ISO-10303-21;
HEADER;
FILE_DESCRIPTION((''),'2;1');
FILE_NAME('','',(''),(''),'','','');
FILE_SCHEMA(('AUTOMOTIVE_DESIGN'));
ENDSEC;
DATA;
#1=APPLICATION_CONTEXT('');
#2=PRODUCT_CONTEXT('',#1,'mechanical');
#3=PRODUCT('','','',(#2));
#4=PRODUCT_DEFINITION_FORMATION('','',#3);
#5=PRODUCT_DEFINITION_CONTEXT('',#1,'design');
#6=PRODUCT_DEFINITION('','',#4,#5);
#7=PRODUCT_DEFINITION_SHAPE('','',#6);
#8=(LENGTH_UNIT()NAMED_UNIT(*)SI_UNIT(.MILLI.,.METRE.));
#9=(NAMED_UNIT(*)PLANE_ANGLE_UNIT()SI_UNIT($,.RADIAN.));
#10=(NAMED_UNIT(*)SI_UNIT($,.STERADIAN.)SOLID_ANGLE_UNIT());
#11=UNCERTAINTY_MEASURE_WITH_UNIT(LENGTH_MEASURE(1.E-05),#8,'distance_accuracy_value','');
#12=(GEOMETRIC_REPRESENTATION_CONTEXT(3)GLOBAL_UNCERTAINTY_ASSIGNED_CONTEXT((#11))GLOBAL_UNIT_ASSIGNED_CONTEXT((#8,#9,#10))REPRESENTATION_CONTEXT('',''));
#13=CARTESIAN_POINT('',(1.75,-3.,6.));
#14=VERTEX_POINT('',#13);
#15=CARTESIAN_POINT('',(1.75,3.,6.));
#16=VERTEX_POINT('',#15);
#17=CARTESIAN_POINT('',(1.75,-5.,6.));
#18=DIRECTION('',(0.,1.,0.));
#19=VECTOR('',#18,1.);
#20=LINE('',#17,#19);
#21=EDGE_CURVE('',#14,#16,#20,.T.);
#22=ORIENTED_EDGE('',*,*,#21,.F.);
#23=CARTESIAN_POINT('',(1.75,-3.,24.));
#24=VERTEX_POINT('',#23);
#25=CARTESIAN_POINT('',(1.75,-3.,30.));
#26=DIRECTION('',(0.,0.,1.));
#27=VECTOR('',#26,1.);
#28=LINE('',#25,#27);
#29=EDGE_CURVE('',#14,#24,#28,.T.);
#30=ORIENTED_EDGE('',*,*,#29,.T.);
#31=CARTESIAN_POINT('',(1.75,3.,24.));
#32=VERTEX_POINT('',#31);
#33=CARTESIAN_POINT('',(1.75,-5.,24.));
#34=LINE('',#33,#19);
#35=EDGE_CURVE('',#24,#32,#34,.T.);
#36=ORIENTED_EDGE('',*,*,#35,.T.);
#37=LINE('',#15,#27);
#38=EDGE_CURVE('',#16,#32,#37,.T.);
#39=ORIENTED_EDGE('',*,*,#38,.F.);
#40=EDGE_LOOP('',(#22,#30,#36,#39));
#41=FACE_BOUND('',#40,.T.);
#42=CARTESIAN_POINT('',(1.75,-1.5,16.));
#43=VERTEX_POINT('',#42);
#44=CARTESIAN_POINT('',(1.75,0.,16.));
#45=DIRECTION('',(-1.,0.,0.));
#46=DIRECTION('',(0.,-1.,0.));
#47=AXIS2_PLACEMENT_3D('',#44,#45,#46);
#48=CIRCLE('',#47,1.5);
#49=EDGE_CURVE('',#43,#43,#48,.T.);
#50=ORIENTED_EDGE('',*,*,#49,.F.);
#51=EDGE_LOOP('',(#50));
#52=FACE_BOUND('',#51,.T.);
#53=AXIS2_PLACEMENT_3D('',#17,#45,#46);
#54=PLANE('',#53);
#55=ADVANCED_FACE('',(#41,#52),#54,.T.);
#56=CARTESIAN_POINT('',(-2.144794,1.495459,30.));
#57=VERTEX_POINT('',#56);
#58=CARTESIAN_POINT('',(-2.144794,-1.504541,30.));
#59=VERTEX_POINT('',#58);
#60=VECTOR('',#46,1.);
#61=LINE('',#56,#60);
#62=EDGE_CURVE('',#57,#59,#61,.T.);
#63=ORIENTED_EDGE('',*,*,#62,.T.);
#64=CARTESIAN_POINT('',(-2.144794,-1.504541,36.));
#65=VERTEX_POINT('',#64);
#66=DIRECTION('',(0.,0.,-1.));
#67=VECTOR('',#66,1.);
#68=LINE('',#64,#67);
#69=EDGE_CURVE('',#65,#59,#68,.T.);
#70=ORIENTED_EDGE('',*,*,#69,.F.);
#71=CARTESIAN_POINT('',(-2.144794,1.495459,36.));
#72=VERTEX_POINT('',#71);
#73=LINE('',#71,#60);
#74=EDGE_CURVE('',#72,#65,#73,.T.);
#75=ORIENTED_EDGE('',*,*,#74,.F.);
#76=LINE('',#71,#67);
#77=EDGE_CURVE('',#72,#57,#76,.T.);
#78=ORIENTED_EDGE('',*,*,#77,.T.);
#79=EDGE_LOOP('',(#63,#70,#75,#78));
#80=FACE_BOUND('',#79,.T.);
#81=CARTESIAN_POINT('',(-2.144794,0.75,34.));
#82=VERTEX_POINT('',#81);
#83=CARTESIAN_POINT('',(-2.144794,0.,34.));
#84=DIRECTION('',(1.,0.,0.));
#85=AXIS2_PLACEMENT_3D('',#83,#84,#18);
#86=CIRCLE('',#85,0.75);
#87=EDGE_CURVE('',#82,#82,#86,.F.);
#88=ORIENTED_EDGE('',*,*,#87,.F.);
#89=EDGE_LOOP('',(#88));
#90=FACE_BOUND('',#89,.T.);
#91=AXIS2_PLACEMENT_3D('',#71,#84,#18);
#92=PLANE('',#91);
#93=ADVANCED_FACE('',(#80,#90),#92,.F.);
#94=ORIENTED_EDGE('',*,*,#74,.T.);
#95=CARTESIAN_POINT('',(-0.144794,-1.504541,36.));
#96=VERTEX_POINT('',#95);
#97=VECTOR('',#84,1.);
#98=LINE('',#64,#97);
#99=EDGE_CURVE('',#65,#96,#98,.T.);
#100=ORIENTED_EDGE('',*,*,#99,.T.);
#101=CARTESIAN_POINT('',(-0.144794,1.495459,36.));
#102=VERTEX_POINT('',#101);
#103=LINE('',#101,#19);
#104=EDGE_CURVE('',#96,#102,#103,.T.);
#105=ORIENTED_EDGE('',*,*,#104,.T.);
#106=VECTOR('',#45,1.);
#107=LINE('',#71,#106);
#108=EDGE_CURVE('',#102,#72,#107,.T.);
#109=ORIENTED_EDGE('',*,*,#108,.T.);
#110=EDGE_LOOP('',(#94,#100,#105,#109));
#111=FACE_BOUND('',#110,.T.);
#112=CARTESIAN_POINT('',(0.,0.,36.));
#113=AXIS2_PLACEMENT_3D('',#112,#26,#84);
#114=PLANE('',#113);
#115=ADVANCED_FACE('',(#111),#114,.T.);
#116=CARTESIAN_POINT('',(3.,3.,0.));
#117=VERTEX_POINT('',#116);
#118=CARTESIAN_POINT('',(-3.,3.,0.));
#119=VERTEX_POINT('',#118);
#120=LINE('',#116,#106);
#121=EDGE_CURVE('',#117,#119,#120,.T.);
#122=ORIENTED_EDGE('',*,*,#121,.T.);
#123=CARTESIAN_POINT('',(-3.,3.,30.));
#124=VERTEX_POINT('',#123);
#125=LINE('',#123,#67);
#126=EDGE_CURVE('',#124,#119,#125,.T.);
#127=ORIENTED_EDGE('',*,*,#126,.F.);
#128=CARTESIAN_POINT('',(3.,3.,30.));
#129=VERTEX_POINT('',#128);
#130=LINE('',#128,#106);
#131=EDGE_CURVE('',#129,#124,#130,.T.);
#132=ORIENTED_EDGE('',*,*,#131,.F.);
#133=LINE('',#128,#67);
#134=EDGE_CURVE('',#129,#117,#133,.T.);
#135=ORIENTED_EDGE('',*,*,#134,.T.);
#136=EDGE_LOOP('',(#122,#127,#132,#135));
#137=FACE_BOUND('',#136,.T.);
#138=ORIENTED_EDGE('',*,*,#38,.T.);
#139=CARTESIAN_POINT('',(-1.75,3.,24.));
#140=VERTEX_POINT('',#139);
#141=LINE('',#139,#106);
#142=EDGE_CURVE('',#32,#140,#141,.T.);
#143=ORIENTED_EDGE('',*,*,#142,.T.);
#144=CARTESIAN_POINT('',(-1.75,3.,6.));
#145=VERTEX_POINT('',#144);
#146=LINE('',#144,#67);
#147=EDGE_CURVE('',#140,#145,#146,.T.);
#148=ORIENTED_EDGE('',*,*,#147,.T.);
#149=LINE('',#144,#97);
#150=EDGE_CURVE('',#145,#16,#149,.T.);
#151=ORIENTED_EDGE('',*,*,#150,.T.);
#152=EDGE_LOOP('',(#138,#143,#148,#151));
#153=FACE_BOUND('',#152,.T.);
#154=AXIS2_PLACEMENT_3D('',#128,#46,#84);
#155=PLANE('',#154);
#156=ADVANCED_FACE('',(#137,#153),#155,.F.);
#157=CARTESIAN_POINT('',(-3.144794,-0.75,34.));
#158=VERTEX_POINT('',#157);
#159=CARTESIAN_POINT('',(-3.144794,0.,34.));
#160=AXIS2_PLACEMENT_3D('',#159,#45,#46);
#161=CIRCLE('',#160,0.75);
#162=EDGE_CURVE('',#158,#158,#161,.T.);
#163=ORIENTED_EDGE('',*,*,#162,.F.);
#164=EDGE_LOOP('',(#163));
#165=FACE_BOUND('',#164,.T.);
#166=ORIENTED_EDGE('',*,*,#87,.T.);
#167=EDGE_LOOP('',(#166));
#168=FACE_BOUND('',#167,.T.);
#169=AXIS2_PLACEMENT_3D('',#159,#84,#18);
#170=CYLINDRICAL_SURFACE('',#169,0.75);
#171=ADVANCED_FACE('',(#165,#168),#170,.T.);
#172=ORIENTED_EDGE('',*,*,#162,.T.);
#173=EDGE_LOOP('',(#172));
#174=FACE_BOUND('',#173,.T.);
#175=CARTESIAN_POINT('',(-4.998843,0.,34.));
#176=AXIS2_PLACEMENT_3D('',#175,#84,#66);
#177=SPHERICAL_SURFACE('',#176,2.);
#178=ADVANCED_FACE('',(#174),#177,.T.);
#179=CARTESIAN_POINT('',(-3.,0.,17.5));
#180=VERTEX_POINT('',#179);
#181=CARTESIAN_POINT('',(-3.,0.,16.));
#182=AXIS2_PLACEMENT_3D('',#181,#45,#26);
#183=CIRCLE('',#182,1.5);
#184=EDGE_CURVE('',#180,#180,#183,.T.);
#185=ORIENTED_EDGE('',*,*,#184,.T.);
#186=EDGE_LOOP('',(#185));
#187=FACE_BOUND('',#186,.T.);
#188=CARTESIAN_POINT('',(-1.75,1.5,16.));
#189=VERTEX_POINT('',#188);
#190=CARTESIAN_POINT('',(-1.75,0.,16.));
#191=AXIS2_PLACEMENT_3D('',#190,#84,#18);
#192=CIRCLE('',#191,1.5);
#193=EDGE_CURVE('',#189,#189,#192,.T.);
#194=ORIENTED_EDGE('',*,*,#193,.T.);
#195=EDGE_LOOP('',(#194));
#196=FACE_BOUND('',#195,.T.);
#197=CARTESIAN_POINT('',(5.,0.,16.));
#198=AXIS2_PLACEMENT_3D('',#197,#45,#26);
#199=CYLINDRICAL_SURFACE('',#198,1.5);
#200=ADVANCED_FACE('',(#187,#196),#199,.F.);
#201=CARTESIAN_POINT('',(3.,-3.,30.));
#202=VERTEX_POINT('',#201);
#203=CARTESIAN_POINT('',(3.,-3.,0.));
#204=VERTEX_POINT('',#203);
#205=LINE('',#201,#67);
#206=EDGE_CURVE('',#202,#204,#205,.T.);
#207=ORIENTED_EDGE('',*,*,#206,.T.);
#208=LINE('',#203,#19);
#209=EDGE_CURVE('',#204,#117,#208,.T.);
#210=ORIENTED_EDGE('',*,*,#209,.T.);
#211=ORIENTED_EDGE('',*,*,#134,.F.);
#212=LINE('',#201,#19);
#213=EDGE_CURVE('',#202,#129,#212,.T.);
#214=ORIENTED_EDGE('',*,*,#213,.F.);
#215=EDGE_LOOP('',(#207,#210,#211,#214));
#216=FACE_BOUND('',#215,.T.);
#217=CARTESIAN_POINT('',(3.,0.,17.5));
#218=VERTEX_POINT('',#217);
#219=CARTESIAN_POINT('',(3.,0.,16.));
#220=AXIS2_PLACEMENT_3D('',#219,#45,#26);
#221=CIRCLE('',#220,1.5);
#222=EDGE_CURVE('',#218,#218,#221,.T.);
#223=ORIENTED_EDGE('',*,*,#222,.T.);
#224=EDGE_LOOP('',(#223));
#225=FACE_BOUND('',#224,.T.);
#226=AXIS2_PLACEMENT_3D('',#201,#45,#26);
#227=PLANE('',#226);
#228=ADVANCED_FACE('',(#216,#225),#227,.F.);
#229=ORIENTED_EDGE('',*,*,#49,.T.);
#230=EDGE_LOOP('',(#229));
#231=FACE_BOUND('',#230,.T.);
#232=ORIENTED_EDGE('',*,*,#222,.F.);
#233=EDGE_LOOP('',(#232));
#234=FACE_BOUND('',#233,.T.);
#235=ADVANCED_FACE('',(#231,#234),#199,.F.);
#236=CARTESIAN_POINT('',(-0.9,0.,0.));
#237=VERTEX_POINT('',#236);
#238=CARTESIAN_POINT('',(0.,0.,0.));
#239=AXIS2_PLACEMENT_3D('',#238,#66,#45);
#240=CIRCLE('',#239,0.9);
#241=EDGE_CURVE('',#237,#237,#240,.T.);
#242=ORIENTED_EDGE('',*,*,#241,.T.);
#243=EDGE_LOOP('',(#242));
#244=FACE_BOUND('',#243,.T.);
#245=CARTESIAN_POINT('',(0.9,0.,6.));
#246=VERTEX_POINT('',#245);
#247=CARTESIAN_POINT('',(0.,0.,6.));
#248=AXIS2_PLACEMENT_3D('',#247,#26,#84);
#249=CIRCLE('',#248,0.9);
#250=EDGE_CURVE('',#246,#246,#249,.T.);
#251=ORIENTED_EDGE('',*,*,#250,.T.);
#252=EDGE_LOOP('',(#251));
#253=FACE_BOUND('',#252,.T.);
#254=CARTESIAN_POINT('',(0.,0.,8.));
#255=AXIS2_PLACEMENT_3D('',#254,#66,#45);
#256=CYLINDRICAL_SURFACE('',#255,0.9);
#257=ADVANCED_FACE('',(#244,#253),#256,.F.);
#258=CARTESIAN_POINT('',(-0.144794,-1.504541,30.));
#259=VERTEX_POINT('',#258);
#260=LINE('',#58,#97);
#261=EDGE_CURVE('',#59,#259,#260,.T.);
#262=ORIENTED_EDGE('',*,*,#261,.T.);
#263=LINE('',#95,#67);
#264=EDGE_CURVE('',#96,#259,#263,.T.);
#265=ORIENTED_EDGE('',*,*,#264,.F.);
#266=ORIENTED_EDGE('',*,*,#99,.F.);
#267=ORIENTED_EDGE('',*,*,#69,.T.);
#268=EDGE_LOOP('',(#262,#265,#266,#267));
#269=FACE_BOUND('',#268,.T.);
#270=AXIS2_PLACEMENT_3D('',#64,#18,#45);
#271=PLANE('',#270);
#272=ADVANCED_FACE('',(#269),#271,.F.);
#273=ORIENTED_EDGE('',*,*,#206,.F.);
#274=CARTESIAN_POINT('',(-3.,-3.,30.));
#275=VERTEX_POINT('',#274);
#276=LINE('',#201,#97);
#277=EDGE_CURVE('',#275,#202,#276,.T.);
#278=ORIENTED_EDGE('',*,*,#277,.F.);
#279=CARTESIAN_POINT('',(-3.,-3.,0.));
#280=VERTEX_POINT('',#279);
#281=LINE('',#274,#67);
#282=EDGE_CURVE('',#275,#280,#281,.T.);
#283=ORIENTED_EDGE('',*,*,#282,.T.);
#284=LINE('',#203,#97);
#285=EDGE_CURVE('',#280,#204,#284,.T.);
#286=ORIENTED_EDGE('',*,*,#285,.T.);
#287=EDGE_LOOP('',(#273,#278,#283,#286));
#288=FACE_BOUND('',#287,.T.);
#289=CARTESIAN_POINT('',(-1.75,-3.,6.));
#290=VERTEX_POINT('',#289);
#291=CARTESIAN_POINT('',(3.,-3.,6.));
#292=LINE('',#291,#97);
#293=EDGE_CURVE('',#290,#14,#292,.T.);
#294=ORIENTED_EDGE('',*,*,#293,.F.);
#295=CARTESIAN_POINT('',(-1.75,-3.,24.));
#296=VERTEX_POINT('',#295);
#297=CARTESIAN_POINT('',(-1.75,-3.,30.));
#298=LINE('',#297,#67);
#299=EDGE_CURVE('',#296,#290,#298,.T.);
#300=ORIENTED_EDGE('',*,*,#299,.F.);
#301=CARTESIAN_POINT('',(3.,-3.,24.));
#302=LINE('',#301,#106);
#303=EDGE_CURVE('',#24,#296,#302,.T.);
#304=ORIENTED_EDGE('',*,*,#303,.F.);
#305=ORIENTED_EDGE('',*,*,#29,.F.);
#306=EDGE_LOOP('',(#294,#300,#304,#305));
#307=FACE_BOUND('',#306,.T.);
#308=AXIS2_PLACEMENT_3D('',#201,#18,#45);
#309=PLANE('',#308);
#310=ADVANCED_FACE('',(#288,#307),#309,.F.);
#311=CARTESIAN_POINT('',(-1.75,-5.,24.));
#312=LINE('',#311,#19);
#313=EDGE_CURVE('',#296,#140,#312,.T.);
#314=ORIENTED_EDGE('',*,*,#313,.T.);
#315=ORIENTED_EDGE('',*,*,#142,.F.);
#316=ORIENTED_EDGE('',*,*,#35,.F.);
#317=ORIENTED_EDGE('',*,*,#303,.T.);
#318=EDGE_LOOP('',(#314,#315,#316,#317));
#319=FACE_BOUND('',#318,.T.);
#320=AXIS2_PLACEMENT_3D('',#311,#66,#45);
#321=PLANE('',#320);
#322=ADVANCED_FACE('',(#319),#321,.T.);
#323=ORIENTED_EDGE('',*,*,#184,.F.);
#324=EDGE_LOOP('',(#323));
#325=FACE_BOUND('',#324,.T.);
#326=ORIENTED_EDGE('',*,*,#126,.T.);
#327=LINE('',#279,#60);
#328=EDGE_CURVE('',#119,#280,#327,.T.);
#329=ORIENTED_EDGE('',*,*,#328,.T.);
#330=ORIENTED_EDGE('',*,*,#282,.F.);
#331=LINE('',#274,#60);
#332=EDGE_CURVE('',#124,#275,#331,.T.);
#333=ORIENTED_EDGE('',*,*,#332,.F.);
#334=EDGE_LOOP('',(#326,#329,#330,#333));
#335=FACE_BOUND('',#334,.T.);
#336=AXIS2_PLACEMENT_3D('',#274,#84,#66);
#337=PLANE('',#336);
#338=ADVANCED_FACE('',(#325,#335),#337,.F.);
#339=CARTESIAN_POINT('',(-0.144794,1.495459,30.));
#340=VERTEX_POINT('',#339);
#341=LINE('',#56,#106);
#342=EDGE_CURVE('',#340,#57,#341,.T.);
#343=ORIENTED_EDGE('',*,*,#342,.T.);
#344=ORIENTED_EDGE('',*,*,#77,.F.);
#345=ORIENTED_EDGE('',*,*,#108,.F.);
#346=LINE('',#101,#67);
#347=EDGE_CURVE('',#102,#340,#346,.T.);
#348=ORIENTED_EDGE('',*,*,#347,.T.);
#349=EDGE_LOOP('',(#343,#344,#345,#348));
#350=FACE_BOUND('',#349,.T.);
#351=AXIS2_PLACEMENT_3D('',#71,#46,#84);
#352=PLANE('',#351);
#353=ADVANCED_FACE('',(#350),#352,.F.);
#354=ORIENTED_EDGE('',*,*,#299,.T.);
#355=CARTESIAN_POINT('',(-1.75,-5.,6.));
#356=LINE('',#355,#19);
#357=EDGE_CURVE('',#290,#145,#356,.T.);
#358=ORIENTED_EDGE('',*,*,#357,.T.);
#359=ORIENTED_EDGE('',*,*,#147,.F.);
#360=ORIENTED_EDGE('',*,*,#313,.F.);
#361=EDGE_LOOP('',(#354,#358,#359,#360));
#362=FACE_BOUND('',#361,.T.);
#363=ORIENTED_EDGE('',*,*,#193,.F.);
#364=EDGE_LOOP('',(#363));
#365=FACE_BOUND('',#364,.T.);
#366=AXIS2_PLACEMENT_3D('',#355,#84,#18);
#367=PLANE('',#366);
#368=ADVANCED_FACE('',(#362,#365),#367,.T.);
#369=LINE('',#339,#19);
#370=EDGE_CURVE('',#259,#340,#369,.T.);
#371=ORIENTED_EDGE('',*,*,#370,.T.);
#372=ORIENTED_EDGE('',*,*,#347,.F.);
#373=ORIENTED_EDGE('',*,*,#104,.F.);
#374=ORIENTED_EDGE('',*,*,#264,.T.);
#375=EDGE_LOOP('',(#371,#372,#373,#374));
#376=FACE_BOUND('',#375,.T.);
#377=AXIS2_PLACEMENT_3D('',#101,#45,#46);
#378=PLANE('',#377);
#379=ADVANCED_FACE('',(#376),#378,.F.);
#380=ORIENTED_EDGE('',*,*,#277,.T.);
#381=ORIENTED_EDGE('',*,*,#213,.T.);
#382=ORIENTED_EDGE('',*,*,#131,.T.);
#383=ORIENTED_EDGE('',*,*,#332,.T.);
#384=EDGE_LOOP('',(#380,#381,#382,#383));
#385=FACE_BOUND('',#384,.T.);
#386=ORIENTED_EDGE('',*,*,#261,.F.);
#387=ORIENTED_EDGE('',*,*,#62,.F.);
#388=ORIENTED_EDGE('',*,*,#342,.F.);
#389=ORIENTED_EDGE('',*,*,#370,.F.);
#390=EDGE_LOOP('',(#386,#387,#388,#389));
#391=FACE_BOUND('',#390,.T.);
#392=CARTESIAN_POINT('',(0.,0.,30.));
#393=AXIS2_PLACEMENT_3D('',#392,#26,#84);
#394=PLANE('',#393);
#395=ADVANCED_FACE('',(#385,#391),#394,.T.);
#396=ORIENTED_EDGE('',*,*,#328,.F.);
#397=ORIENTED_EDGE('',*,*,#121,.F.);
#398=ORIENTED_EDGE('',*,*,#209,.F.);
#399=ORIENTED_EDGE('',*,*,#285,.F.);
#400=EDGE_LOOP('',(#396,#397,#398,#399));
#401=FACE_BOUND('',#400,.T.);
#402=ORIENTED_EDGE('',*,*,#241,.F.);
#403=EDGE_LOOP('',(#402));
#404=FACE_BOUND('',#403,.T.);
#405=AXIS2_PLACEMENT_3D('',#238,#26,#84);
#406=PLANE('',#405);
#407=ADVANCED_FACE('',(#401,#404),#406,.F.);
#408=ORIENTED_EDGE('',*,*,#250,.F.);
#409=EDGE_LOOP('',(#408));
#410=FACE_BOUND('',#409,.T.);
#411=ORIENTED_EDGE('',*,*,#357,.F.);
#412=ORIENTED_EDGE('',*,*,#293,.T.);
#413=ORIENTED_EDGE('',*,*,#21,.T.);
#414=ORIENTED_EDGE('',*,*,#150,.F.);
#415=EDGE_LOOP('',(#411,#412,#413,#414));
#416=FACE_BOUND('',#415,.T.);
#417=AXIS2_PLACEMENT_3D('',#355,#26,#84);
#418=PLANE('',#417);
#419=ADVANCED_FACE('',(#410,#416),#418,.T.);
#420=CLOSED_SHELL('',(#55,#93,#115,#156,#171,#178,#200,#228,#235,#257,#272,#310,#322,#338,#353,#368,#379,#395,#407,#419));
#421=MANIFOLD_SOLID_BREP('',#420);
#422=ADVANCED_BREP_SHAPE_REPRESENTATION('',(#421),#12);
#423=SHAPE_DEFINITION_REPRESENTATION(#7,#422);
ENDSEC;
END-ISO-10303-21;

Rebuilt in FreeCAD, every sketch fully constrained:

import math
import FreeCAD as App
import Part
import Sketcher


def add_polygon(sketch, points):
    """Adds a closed chain of lines whose ends are joined by coincident constraints."""
    first, n = sketch.GeometryCount, len(points)
    for a, b in zip(points, points[1:] + points[:1]):
        sketch.addGeometry(Part.LineSegment(App.Vector(*a, 0), App.Vector(*b, 0)), False)
    for i in range(n):
        sketch.addConstraint(Sketcher.Constraint("Coincident", first + i, 2, first + (i + 1) % n, 1))

doc = App.newDocument("Part")
body = doc.addObject("PartDesign::Body", "Body")

# Sketch on XY plane
sketch1 = body.newObject("Sketcher::SketchObject", "Sketch")
sketch1.AttachmentSupport = (doc.getObject("XY_Plane"), [""])
sketch1.MapMode = "FlatFace"
add_polygon(sketch1, [(-3, 3), (-3, -3), (3, -3), (3, 3)])  # lines 0-3
sketch1.addConstraint([
    Sketcher.Constraint("Vertical", 0),
    Sketcher.Constraint("Horizontal", 1),
    Sketcher.Constraint("Vertical", 2),
    Sketcher.Constraint("Horizontal", 3),
    Sketcher.Constraint("Symmetric", 0, 2, 2, 2, -1, 1),
    Sketcher.Constraint("Equal", 3, 0),
    Sketcher.Constraint("DistanceX", 1, 1, 1, 2, 6.0),
])
pad1 = body.newObject("PartDesign::Pad", "Pad")
pad1.Profile = sketch1
pad1.Length = 30

# Sketch on XY plane
sketch2 = body.newObject("Sketcher::SketchObject", "Sketch001")
sketch2.AttachmentSupport = (doc.getObject("XY_Plane"), [""])
sketch2.MapMode = "FlatFace"
sketch2.AttachmentOffset = App.Placement(App.Vector(0, 0, 30), App.Rotation())
add_polygon(sketch2, [(-2.144794, 1.495459), (-2.144794, -1.504541), (-0.144794, -1.504541), (-0.144794, 1.495459)])  # lines 0-3
sketch2.addConstraint([
    Sketcher.Constraint("Vertical", 0),
    Sketcher.Constraint("Horizontal", 1),
    Sketcher.Constraint("Vertical", 2),
    Sketcher.Constraint("Horizontal", 3),
    Sketcher.Constraint("DistanceX", 1, 1, 1, 2, 2.0),
    Sketcher.Constraint("DistanceY", 0, 2, 0, 1, 3.0),
    Sketcher.Constraint("DistanceY", 0, 2, -1, 1, 1.504541),
    Sketcher.Constraint("DistanceX", 0, 2, -1, 1, 2.144794),
])
pad2 = body.newObject("PartDesign::Pad", "Pad001")
pad2.Profile = sketch2
pad2.Length = 6

# Sketch on YZ plane
sketch3 = body.newObject("Sketcher::SketchObject", "Sketch002")
sketch3.AttachmentSupport = (doc.getObject("YZ_Plane"), [""])
sketch3.MapMode = "FlatFace"
sketch3.AttachmentOffset = App.Placement(App.Vector(0, 0, -2.144794), App.Rotation())
sketch3.addGeometry(Part.Circle(App.Vector(0, 34, 0), App.Vector(0, 0, 1), 0.75), False)
sketch3.addConstraint([
    Sketcher.Constraint("PointOnObject", 0, 3, -2),
    Sketcher.Constraint("Diameter", 0, 1.5),
    Sketcher.Constraint("DistanceY", -1, 1, 0, 3, 34.0),
])
pad3 = body.newObject("PartDesign::Pad", "Pad002")
pad3.Profile = sketch3
pad3.Length = 1
pad3.Reversed = True

# Sketch on XZ plane
sketch4 = body.newObject("Sketcher::SketchObject", "Sketch003")
sketch4.AttachmentSupport = (doc.getObject("XZ_Plane"), [""])
sketch4.MapMode = "FlatFace"
sketch4.addGeometry([
    Part.LineSegment(App.Vector(-6.998843, 34, 0), App.Vector(-3.144794, 34, 0)),
    Part.LineSegment(App.Vector(-3.144794, 34, 0), App.Vector(-3.144794, 33.25, 0)),
    Part.ArcOfCircle(Part.Circle(App.Vector(-4.998843, 34, 0), App.Vector(0, 0, 1), 2), math.radians(180), math.radians(337.975687)),
], False)
sketch4.addGeometry(Part.LineSegment(App.Vector(-3.144794, 34, 0), App.Vector(-6.998843, 34, 0)), True)  # axis
sketch4.addConstraint([
    Sketcher.Constraint("Coincident", 0, 2, 1, 1),
    Sketcher.Constraint("Coincident", 1, 2, 2, 2),
    Sketcher.Constraint("Coincident", 2, 1, 0, 1),
    Sketcher.Constraint("Horizontal", 0),
    Sketcher.Constraint("Vertical", 1),
    Sketcher.Constraint("Horizontal", 3),
    Sketcher.Constraint("Coincident", 3, 1, 0, 2),
    Sketcher.Constraint("Horizontal", 2, 3, 0, 2),
    Sketcher.Constraint("Equal", 0, 3),
    Sketcher.Constraint("Radius", 2, 2.0),
    Sketcher.Constraint("DistanceY", -1, 1, 2, 3, 34.0),
    Sketcher.Constraint("DistanceY", 1, 2, 1, 1, 0.75),
    Sketcher.Constraint("DistanceX", 2, 3, -1, 1, 4.998843),
])
revolution = body.newObject("PartDesign::Revolution", "Revolution")
revolution.Profile = sketch4
revolution.ReferenceAxis = (sketch4, ["Axis0"])
revolution.Angle = 360

# Sketch on XZ plane
sketch5 = body.newObject("Sketcher::SketchObject", "Sketch004")
sketch5.AttachmentSupport = (doc.getObject("XZ_Plane"), [""])
sketch5.MapMode = "FlatFace"
sketch5.AttachmentOffset = App.Placement(App.Vector(0, 0, -3), App.Rotation())
add_polygon(sketch5, [(-1.75, 6), (1.75, 6), (1.75, 24), (-1.75, 24)])  # lines 0-3
sketch5.addConstraint([
    Sketcher.Constraint("Horizontal", 0),
    Sketcher.Constraint("Vertical", 1),
    Sketcher.Constraint("Horizontal", 2),
    Sketcher.Constraint("Vertical", 3),
    Sketcher.Constraint("DistanceY", 1, 1, 1, 2, 18.0),
    Sketcher.Constraint("DistanceX", 0, 1, 0, 2, 3.5),
    Sketcher.Constraint("DistanceY", -1, 1, 0, 2, 6.0),
    Sketcher.Constraint("DistanceX", -1, 1, 0, 2, 1.75),
])
pocket1 = body.newObject("PartDesign::Pocket", "Pocket")
pocket1.Profile = sketch5
pocket1.Length = 8
pocket1.Reversed = True

# Sketch on YZ plane
sketch6 = body.newObject("Sketcher::SketchObject", "Sketch005")
sketch6.AttachmentSupport = (doc.getObject("YZ_Plane"), [""])
sketch6.MapMode = "FlatFace"
sketch6.AttachmentOffset = App.Placement(App.Vector(0, 0, -3), App.Rotation())
sketch6.addGeometry(Part.Circle(App.Vector(0, 16, 0), App.Vector(0, 0, 1), 1.5), False)
sketch6.addConstraint([
    Sketcher.Constraint("PointOnObject", 0, 3, -2),
    Sketcher.Constraint("Diameter", 0, 3.0),
    Sketcher.Constraint("DistanceY", -1, 1, 0, 3, 16.0),
])
pocket2 = body.newObject("PartDesign::Pocket", "Pocket001")
pocket2.Profile = sketch6
pocket2.Length = 8
pocket2.Reversed = True

# Sketch on XY plane
sketch7 = body.newObject("Sketcher::SketchObject", "Sketch006")
sketch7.AttachmentSupport = (doc.getObject("XY_Plane"), [""])
sketch7.MapMode = "FlatFace"
sketch7.addGeometry(Part.Circle(App.Vector(0, 0, 0), App.Vector(0, 0, 1), 0.9), False)
sketch7.addConstraint([
    Sketcher.Constraint("Coincident", 0, 3, -1, 1),
    Sketcher.Constraint("Diameter", 0, 1.8),
])
pocket3 = body.newObject("PartDesign::Pocket", "Pocket002")
pocket3.Profile = sketch7
pocket3.Length = 8
pocket3.Reversed = True

doc.recompute()
